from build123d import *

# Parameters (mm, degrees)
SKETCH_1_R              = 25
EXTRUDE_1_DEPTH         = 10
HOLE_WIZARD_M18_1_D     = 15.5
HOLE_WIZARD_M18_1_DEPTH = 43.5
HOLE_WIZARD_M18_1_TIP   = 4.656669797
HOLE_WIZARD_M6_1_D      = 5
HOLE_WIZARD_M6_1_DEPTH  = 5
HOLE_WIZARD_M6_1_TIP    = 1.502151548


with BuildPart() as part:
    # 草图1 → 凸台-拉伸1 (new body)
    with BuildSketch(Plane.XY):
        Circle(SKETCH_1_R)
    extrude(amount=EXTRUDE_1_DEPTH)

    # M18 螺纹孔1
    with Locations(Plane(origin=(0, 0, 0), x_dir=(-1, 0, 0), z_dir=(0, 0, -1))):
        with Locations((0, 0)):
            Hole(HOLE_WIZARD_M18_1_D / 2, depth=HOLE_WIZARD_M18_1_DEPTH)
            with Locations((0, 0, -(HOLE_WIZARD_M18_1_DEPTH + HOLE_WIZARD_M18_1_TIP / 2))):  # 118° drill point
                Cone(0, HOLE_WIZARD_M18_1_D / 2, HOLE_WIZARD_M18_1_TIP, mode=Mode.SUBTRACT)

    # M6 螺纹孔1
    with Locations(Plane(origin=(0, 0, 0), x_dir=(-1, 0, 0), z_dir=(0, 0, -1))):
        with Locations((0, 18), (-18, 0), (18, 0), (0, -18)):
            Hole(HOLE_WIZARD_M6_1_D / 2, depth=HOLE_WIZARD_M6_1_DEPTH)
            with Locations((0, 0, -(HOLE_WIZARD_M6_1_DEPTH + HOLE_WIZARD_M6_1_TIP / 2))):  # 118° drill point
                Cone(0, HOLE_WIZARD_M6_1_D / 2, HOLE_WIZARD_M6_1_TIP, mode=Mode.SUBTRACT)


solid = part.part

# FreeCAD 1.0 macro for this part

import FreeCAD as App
import Part
import Sketcher

V = App.Vector

doc = App.newDocument("Part")
body = doc.addObject("PartDesign::Body", "Body")

sketch1 = doc.addObject("Sketcher::SketchObject", "Sketch")
body.addObject(sketch1)
sketch1.AttachmentSupport = (doc.XY_Plane, [""])
sketch1.MapMode = "FlatFace"
sketch1.addGeometry(Part.Circle(V(0, 0, 0), V(0, 0, 1), 25), False)
sketch1.addConstraint([
    Sketcher.Constraint("Coincident", 0, 3, -1, 1),
    Sketcher.Constraint("Diameter", 0, 50.0),
])
pad1 = doc.addObject("PartDesign::Pad", "Pad")
body.addObject(pad1)
pad1.Profile = sketch1
pad1.Length = 10

sketch2 = doc.addObject("Sketcher::SketchObject", "Sketch001")
body.addObject(sketch2)
sketch2.AttachmentSupport = (doc.XY_Plane, [""])
sketch2.MapMode = "FlatFace"
sketch2.addGeometry(Part.Circle(V(0, 0, 0), V(0, 0, 1), 7.75), False)
sketch2.addConstraint([
    Sketcher.Constraint("Coincident", 0, 3, -1, 1),
    Sketcher.Constraint("Diameter", 0, 15.5),
])
doc.recompute()
hole = doc.addObject("PartDesign::Hole", "Hole")
body.addObject(hole)
hole.Profile = sketch2
hole.ThreadType = "None"
hole.Diameter = 15.5
hole.DepthType = "Dimension"
hole.Depth = 43.5
hole.DrillPoint = "Angled"
hole.DrillPointAngle = 118
hole.Reversed = True

sketch3 = doc.addObject("Sketcher::SketchObject", "Sketch002")
body.addObject(sketch3)
sketch3.AttachmentSupport = (doc.XY_Plane, [""])
sketch3.MapMode = "FlatFace"
sketch3.addGeometry([
    Part.Circle(V(0, 18, 0), V(0, 0, 1), 2.5),
    Part.Circle(V(18, 0, 0), V(0, 0, 1), 2.5),
    Part.Circle(V(-18, 0, 0), V(0, 0, 1), 2.5),
    Part.Circle(V(0, -18, 0), V(0, 0, 1), 2.5),
], False)
sketch3.addConstraint([
    Sketcher.Constraint("Equal", 0, 1),
    Sketcher.Constraint("Equal", 1, 2),
    Sketcher.Constraint("Equal", 2, 3),
    Sketcher.Constraint("Symmetric", 1, 3, 2, 3, -1, 1),
    Sketcher.Constraint("Symmetric", 0, 3, 3, 3, -1, 1),
    Sketcher.Constraint("PointOnObject", 0, 3, -2),
    Sketcher.Constraint("PointOnObject", 1, 3, -1),
    Sketcher.Constraint("Diameter", 0, 5.0),
    Sketcher.Constraint("DistanceY", -1, 1, 0, 3, 18.0),
    Sketcher.Constraint("DistanceX", -1, 1, 1, 3, 18.0),
])
doc.recompute()
hole2 = doc.addObject("PartDesign::Hole", "Hole001")
body.addObject(hole2)
hole2.Profile = sketch3
hole2.ThreadType = "None"
hole2.Diameter = 5
hole2.DepthType = "Dimension"
hole2.Depth = 5
hole2.DrillPoint = "Angled"
hole2.DrillPointAngle = 118
hole2.Reversed = True

doc.recompute()
